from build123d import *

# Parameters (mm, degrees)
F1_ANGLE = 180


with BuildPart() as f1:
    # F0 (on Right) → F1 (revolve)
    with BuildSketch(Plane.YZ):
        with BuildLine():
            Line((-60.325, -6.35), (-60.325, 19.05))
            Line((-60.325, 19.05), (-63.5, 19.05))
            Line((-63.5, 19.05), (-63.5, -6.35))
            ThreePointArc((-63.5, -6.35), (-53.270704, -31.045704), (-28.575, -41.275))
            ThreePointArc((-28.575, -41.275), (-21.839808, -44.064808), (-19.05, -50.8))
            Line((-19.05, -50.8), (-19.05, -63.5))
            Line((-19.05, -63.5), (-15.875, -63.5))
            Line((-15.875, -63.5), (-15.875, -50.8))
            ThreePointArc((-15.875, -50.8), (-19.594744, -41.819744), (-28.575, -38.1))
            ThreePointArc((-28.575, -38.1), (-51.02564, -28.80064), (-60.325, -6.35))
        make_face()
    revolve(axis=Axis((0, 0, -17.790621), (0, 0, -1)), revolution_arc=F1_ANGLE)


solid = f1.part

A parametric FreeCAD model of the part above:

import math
import FreeCAD as App
import Part
import Sketcher
Q = App.Units.Quantity

doc = App.newDocument("Part")
body = doc.addObject("PartDesign::Body", "Body")

sketch1 = doc.addObject("Sketcher::SketchObject", "Sketch")
body.addObject(sketch1)
sketch1.AttachmentSupport = (doc.YZ_Plane, [""])
sketch1.MapMode = "FlatFace"
sketch1.addGeometry(Part.LineSegment(App.Vector(-60.3, -6.3, 0), App.Vector(-60.3, 19.1, 0)), False)
sketch1.addGeometry(Part.LineSegment(App.Vector(-60.3, 19.1, 0), App.Vector(-63.5, 19.1, 0)), False)
sketch1.addGeometry(Part.LineSegment(App.Vector(-63.5, 19.1, 0), App.Vector(-63.5, -6.3, 0)), False)
sketch1.addGeometry(Part.ArcOfCircle(Part.Circle(App.Vector(-28.6, -6.3, 0), App.Vector(0, 0, 1), 34.9), math.radians(-180), math.radians(-90)), False)
sketch1.addGeometry(Part.ArcOfCircle(Part.Circle(App.Vector(-28.6, -50.8, 0), App.Vector(0, 0, 1), 9.5), math.radians(0), math.radians(90)), False)
sketch1.addGeometry(Part.LineSegment(App.Vector(-19.1, -50.8, 0), App.Vector(-19.1, -63.5, 0)), False)
sketch1.addGeometry(Part.LineSegment(App.Vector(-19.1, -63.5, 0), App.Vector(-15.9, -63.5, 0)), False)
sketch1.addGeometry(Part.LineSegment(App.Vector(-15.9, -63.5, 0), App.Vector(-15.9, -50.8, 0)), False)
sketch1.addGeometry(Part.ArcOfCircle(Part.Circle(App.Vector(-28.6, -50.8, 0), App.Vector(0, 0, 1), 12.7), math.radians(0), math.radians(90)), False)
sketch1.addGeometry(Part.ArcOfCircle(Part.Circle(App.Vector(-28.6, -6.3, 0), App.Vector(0, 0, 1), 31.8), math.radians(-180), math.radians(-90)), False)
sketch1.addConstraint(Sketcher.Constraint("Coincident", 0, 2, 1, 1))
sketch1.addConstraint(Sketcher.Constraint("Coincident", 1, 2, 2, 1))
sketch1.addConstraint(Sketcher.Constraint("Tangent", 2, 2, 3, 1))
sketch1.addConstraint(Sketcher.Constraint("Tangent", 3, 2, 4, 2))
sketch1.addConstraint(Sketcher.Constraint("Tangent", 4, 1, 5, 1))
sketch1.addConstraint(Sketcher.Constraint("Coincident", 5, 2, 6, 1))
sketch1.addConstraint(Sketcher.Constraint("Coincident", 6, 2, 7, 1))
sketch1.addConstraint(Sketcher.Constraint("Tangent", 7, 2, 8, 1))
sketch1.addConstraint(Sketcher.Constraint("Tangent", 8, 2, 9, 2))
sketch1.addConstraint(Sketcher.Constraint("Tangent", 9, 1, 0, 1))
sketch1.addConstraint(Sketcher.Constraint("Vertical", 0))
sketch1.addConstraint(Sketcher.Constraint("Horizontal", 1))
sketch1.addConstraint(Sketcher.Constraint("Vertical", 2))
sketch1.addConstraint(Sketcher.Constraint("Vertical", 5))
sketch1.addConstraint(Sketcher.Constraint("Horizontal", 6))
sketch1.addConstraint(Sketcher.Constraint("Vertical", 7))
sketch1.addConstraint(Sketcher.Constraint("Coincident", 8, 3, 4, 3))
sketch1.addConstraint(Sketcher.Constraint("Coincident", 9, 3, 3, 3))
sketch1.addConstraint(Sketcher.Constraint("Vertical", 3, 3, 4, 3))
sketch1.addConstraint(Sketcher.Constraint("Radius", 8, Q("0.5 in")))
sketch1.addConstraint(Sketcher.Constraint("DistanceY", 0, 1, 0, 2, Q("1 in")))
sketch1.addConstraint(Sketcher.Constraint("Radius", 9, Q("1.25 in")))
sketch1.addConstraint(Sketcher.Constraint("DistanceY", 5, 2, 5, 1, Q("0.5 in")))
sketch1.addConstraint(Sketcher.Constraint("DistanceY", 4, 3, -1, 1, Q("2 in")))
sketch1.addConstraint(Sketcher.Constraint("Radius", 3, Q("1.375 in")))
sketch1.addConstraint(Sketcher.Constraint("DistanceX", 1, 2, -1, 1, Q("2.5 in")))
revolution = doc.addObject("PartDesign::Revolution", "Revolution")
body.addObject(revolution)
revolution.Profile = sketch1
revolution.ReferenceAxis = (sketch1, ["V_Axis"])
revolution.Angle = 180
revolution.Reversed = True

doc.recompute()
